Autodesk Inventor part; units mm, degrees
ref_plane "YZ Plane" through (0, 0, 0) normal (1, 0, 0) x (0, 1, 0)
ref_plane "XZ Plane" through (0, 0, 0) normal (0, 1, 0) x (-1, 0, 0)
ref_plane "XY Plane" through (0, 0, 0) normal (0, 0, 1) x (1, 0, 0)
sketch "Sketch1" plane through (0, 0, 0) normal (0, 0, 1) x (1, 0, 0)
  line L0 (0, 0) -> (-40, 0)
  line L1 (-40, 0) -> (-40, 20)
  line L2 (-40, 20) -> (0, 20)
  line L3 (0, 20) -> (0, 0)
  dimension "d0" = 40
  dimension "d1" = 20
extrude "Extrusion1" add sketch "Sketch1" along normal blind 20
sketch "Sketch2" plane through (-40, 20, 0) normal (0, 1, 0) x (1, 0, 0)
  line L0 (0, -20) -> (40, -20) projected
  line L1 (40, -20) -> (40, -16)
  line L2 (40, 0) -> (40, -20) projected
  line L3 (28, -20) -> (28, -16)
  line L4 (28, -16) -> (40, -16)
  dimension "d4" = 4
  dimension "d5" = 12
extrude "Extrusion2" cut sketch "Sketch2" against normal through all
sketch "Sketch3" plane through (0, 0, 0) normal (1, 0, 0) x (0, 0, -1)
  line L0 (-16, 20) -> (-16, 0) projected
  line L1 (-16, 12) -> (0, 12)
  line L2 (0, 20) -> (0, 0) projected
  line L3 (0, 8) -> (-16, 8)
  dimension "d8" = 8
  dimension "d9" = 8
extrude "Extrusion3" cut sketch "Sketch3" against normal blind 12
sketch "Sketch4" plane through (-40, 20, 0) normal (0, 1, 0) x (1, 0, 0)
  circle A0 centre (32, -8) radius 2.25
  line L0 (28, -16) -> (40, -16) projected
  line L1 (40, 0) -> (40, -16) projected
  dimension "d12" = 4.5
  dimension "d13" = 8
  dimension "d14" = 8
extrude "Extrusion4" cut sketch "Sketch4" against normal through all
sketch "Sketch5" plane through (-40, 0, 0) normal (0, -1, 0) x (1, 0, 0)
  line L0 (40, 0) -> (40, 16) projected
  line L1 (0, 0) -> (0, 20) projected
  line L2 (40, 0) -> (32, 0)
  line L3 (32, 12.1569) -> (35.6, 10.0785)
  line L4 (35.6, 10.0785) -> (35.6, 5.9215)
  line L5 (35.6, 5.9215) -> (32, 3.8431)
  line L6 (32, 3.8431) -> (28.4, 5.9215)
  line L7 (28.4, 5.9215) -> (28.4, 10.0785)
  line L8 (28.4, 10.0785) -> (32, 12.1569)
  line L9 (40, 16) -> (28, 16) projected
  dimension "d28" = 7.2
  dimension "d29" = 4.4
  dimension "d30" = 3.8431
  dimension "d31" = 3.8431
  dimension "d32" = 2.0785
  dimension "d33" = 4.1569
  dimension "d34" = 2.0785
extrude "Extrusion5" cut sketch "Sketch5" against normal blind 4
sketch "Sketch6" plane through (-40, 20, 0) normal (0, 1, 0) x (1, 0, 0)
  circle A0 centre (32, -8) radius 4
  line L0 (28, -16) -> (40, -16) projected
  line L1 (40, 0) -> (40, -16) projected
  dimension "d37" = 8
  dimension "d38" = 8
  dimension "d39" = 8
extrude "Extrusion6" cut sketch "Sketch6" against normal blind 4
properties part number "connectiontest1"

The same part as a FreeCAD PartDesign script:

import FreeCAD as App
import Part
import Sketcher

V = App.Vector
Q = App.Units.Quantity

doc = App.newDocument("Part")
params = doc.addObject("Spreadsheet::Sheet", "Params")
for row, (alias, value) in enumerate([
    ("sketch1_width", "40 mm"),
    ("sketch1_height", "20 mm"),
    ("pad1_length", "20 mm"),
    ("sketch2_width", "12 mm"),
    ("sketch2_height", "4 mm"),
    ("sketch3_width", "4 mm"),
    ("sketch3_height", "16 mm"),
    ("pocket2_length", "12 mm"),
    ("sketch4_diameter", "4.5 mm"),
    ("pocket4_length", "4 mm"),
    ("sketch6_diameter", "8 mm"),
    ("pocket5_length", "4 mm"),
], start=1):
    params.set(f"A{row}", alias)
    params.set(f"B{row}", "=" + value)
    params.setAlias(f"B{row}", alias)

body = doc.addObject("PartDesign::Body", "Body")

sketch1 = body.newObject("Sketcher::SketchObject", "Sketch")
sketch1.AttachmentSupport = (doc.getObject("XY_Plane"), [""])
sketch1.MapMode = "FlatFace"
sketch1.addGeometry([
    Part.LineSegment(V(-40, 0, 0), V(0, 0, 0)),
    Part.LineSegment(V(0, 0, 0), V(0, 20, 0)),
    Part.LineSegment(V(0, 20, 0), V(-40, 20, 0)),
    Part.LineSegment(V(-40, 20, 0), V(-40, 0, 0)),
], False)
sketch1.addConstraint([
    Sketcher.Constraint("Coincident", 0, 2, 1, 1),
    Sketcher.Constraint("Coincident", 1, 2, 2, 1),
    Sketcher.Constraint("Coincident", 2, 2, 3, 1),
    Sketcher.Constraint("Coincident", 3, 2, 0, 1),
    Sketcher.Constraint("Horizontal", 0),
    Sketcher.Constraint("Vertical", 1),
    Sketcher.Constraint("Horizontal", 2),
    Sketcher.Constraint("Vertical", 3),
    Sketcher.Constraint("Coincident", 0, 2, -1, 1),
    Sketcher.Constraint("DistanceX", 0, 1, 0, 2, 40.0),
    Sketcher.Constraint("DistanceY", 1, 1, 1, 2, 20.0),
])
sketch1.setExpression("Constraints[9]", "Params.sketch1_width")
sketch1.setExpression("Constraints[10]", "Params.sketch1_height")
pad1 = body.newObject("PartDesign::Pad", "Pad")
pad1.Profile = sketch1
pad1.setExpression("Length", "Params.pad1_length")

sketch2 = body.newObject("Sketcher::SketchObject", "Sketch001")
sketch2.AttachmentSupport = (doc.getObject("XZ_Plane"), [""])
sketch2.MapMode = "FlatFace"
sketch2.AttachmentOffset = App.Placement(V(0, 0, -20), App.Rotation())
sketch2.addGeometry([
    Part.LineSegment(V(-12, 16, 0), V(-12, 20, 0)),
    Part.LineSegment(V(-12, 20, 0), V(0, 20, 0)),
    Part.LineSegment(V(0, 20, 0), V(0, 16, 0)),
    Part.LineSegment(V(0, 16, 0), V(-12, 16, 0)),
], False)
sketch2.addConstraint([
    Sketcher.Constraint("Coincident", 0, 2, 1, 1),
    Sketcher.Constraint("Coincident", 1, 2, 2, 1),
    Sketcher.Constraint("Coincident", 2, 2, 3, 1),
    Sketcher.Constraint("Coincident", 3, 2, 0, 1),
    Sketcher.Constraint("Vertical", 0),
    Sketcher.Constraint("Horizontal", 1),
    Sketcher.Constraint("Vertical", 2),
    Sketcher.Constraint("Horizontal", 3),
    Sketcher.Constraint("PointOnObject", 1, 2, -2),
    Sketcher.Constraint("DistanceX", 1, 1, 1, 2, 12.0),
    Sketcher.Constraint("DistanceY", 0, 1, 0, 2, 4.0),
    Sketcher.Constraint("DistanceY", -1, 1, 0, 2, 20.0),
])
sketch2.setExpression("Constraints[9]", "Params.sketch2_width")
sketch2.setExpression("Constraints[10]", "Params.sketch2_height")
pocket1 = body.newObject("PartDesign::Pocket", "Pocket")
pocket1.Profile = sketch2
pocket1.Type = "ThroughAll"
pocket1.Reversed = True

sketch3 = body.newObject("Sketcher::SketchObject", "Sketch002")
sketch3.AttachmentSupport = (doc.getObject("YZ_Plane"), [""])
sketch3.MapMode = "FlatFace"
sketch3.addGeometry([
    Part.LineSegment(V(12, 0, 0), V(12, 16, 0)),
    Part.LineSegment(V(12, 16, 0), V(8, 16, 0)),
    Part.LineSegment(V(8, 16, 0), V(8, 0, 0)),
    Part.LineSegment(V(8, 0, 0), V(12, 0, 0)),
], False)
sketch3.addConstraint([
    Sketcher.Constraint("Coincident", 0, 2, 1, 1),
    Sketcher.Constraint("Coincident", 1, 2, 2, 1),
    Sketcher.Constraint("Coincident", 2, 2, 3, 1),
    Sketcher.Constraint("Coincident", 3, 2, 0, 1),
    Sketcher.Constraint("Vertical", 0),
    Sketcher.Constraint("Horizontal", 1),
    Sketcher.Constraint("Vertical", 2),
    Sketcher.Constraint("Horizontal", 3),
    Sketcher.Constraint("PointOnObject", 2, 2, -1),
    Sketcher.Constraint("DistanceX", -1, 1, 1, 2, 8.0),
    Sketcher.Constraint("DistanceX", 1, 2, 1, 1, 4.0),
    Sketcher.Constraint("DistanceY", 0, 1, 0, 2, 16.0),
])
sketch3.setExpression("Constraints[10]", "Params.sketch3_width")
sketch3.setExpression("Constraints[11]", "Params.sketch3_height")
pocket2 = body.newObject("PartDesign::Pocket", "Pocket001")
pocket2.Profile = sketch3
pocket2.setExpression("Length", "Params.pocket2_length")

sketch4 = body.newObject("Sketcher::SketchObject", "Sketch003")
sketch4.AttachmentSupport = (doc.getObject("XZ_Plane"), [""])
sketch4.MapMode = "FlatFace"
sketch4.AttachmentOffset = App.Placement(V(0, 0, -20), App.Rotation())
sketch4.addGeometry(Part.Circle(V(-8, 8, 0), V(0, 0, 1), 2.25), False)
sketch4.addConstraint([
    Sketcher.Constraint("Diameter", 0, 4.5),
    Sketcher.Constraint("DistanceX", 0, 3, -1, 1, 8.0),
    Sketcher.Constraint("DistanceY", -1, 1, 0, 3, 8.0),
])
sketch4.setExpression("Constraints[0]", "Params.sketch4_diameter")
pocket3 = body.newObject("PartDesign::Pocket", "Pocket002")
pocket3.Profile = sketch4
pocket3.Type = "ThroughAll"
pocket3.Reversed = True

sketch5 = body.newObject("Sketcher::SketchObject", "Sketch004")
sketch5.AttachmentSupport = (doc.getObject("XZ_Plane"), [""])
sketch5.MapMode = "FlatFace"
sketch5.addGeometry([
    Part.LineSegment(V(-4.4, 10.0785, 0), V(-8, 12.1569, 0)),
    Part.LineSegment(V(-8, 12.1569, 0), V(-11.6, 10.0785, 0)),
    Part.LineSegment(V(-11.6, 10.0785, 0), V(-11.6, 5.9215, 0)),
    Part.LineSegment(V(-11.6, 5.9215, 0), V(-8, 3.8431, 0)),
    Part.LineSegment(V(-8, 3.8431, 0), V(-4.4, 5.9215, 0)),
    Part.LineSegment(V(-4.4, 5.9215, 0), V(-4.4, 10.0785, 0)),
], False)
sketch5.addConstraint([
    Sketcher.Constraint("Coincident", 0, 2, 1, 1),
    Sketcher.Constraint("Coincident", 1, 2, 2, 1),
    Sketcher.Constraint("Coincident", 2, 2, 3, 1),
    Sketcher.Constraint("Coincident", 3, 2, 4, 1),
    Sketcher.Constraint("Coincident", 4, 2, 5, 1),
    Sketcher.Constraint("Coincident", 5, 2, 0, 1),
    Sketcher.Constraint("Vertical", 2),
    Sketcher.Constraint("Vertical", 5),
    Sketcher.Constraint("Parallel", 0, 3),
    Sketcher.Constraint("Parallel", 1, 4),
    Sketcher.Constraint("Horizontal", 2, 2, 4, 2),
    Sketcher.Constraint("Horizontal", 1, 2, 5, 2),
    Sketcher.Constraint("Vertical", 0, 2, 3, 2),
    Sketcher.Constraint("DistanceX", 4, 2, -1, 1, 4.4),
    Sketcher.Constraint("DistanceX", 2, 2, 4, 2, 7.2),
    Sketcher.Constraint("DistanceY", 2, 2, 2, 1, 4.157),
    Sketcher.Constraint("Angle", 0, Q("150.0007 deg")),
    Sketcher.Constraint("DistanceY", -1, 1, 3, 2, 3.843),
])
pocket4 = body.newObject("PartDesign::Pocket", "Pocket003")
pocket4.Profile = sketch5
pocket4.setExpression("Length", "Params.pocket4_length")

sketch6 = body.newObject("Sketcher::SketchObject", "Sketch005")
sketch6.AttachmentSupport = (doc.getObject("XZ_Plane"), [""])
sketch6.MapMode = "FlatFace"
sketch6.AttachmentOffset = App.Placement(V(0, 0, -20), App.Rotation())
sketch6.addGeometry(Part.Circle(V(-8, 8, 0), V(0, 0, 1), 4), False)
sketch6.addConstraint([
    Sketcher.Constraint("Diameter", 0, 8.0),
    Sketcher.Constraint("DistanceX", 0, 3, -1, 1, 8.0),
    Sketcher.Constraint("DistanceY", -1, 1, 0, 3, 8.0),
])
sketch6.setExpression("Constraints[0]", "Params.sketch6_diameter")
pocket5 = body.newObject("PartDesign::Pocket", "Pocket004")
pocket5.Profile = sketch6
pocket5.setExpression("Length", "Params.pocket5_length")
pocket5.Reversed = True

doc.recompute()
